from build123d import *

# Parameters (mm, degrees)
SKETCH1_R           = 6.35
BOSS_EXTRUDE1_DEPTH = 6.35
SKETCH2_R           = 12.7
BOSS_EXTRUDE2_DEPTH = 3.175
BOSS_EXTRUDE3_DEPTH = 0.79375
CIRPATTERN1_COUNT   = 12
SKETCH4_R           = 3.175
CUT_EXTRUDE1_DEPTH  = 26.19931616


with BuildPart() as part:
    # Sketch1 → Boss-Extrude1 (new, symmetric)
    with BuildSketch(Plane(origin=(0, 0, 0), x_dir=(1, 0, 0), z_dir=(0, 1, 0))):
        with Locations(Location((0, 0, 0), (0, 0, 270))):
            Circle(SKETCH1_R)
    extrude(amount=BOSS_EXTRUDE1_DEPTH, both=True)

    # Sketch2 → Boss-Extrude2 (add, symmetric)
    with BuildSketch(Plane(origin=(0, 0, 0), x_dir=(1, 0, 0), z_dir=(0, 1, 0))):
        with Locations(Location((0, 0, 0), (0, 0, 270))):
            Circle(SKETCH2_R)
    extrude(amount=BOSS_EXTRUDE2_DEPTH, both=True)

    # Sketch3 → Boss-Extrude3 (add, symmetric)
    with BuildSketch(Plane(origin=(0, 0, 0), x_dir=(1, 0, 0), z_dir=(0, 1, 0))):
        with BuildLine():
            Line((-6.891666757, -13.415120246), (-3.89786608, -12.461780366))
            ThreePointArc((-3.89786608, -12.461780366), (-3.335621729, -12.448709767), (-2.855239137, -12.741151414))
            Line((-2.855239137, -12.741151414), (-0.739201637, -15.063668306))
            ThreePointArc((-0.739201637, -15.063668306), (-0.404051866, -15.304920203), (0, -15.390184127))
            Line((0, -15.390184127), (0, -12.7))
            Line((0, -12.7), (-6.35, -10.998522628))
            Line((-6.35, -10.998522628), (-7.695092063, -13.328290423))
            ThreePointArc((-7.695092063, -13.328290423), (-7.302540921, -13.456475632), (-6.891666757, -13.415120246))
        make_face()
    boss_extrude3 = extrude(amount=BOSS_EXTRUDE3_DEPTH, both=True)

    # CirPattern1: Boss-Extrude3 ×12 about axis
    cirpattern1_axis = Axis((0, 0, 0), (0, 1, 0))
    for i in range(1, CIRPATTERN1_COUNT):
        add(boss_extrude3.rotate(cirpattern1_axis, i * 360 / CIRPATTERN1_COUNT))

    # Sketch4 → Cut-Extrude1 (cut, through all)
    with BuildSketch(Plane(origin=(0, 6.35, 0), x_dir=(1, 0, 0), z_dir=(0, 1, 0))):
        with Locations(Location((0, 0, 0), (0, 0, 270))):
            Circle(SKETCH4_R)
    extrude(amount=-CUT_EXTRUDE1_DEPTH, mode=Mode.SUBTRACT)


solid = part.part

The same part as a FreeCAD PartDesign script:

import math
import FreeCAD as App
import Part
import Sketcher

V = App.Vector
Q = App.Units.Quantity

doc = App.newDocument("Part")
body = doc.addObject("PartDesign::Body", "Body")

# Sketch on XZ plane
sketch1 = body.newObject("Sketcher::SketchObject", "Sketch")
sketch1.AttachmentSupport = (doc.getObject("XZ_Plane"), [""])
sketch1.MapMode = "FlatFace"
sketch1.addGeometry(Part.Circle(V(0, 0, 0), V(0, 0, 1), 6), False)
sketch1.addConstraint(Sketcher.Constraint("Coincident", 0, 3, -1, 1))
sketch1.addConstraint(Sketcher.Constraint("Diameter", 0, Q("0.5 in")))
pad1 = body.newObject("PartDesign::Pad", "Pad")
pad1.Profile = sketch1
pad1.Length = Q("0.5 in")
pad1.Midplane = True

# Sketch on XZ plane
sketch2 = body.newObject("Sketcher::SketchObject", "Sketch001")
sketch2.AttachmentSupport = (doc.getObject("XZ_Plane"), [""])
sketch2.MapMode = "FlatFace"
sketch2.addGeometry(Part.Circle(V(0, 0, 0), V(0, 0, 1), 13), False)
sketch2.addConstraint(Sketcher.Constraint("Coincident", 0, 3, -1, 1))
sketch2.addConstraint(Sketcher.Constraint("Diameter", 0, Q("1 in")))
pad2 = body.newObject("PartDesign::Pad", "Pad001")
pad2.Profile = sketch2
pad2.Length = Q("0.25 in")
pad2.Midplane = True

# Sketch on XZ plane
sketch3 = body.newObject("Sketcher::SketchObject", "Sketch002")
sketch3.AttachmentSupport = (doc.getObject("XZ_Plane"), [""])
sketch3.MapMode = "FlatFace"
sketch3.addGeometry(Part.LineSegment(V(-6.9, 13.4, 0), V(-3.9, 12.5, 0)), False)
sketch3.addGeometry(Part.ArcOfCircle(Part.Circle(V(-3.6, 13.4, 0), V(0, 0, 1), 1), math.radians(-108), math.radians(-42)), False)
sketch3.addGeometry(Part.LineSegment(V(-2.9, 12.7, 0), V(-0.7, 15.1, 0)), False)
sketch3.addGeometry(Part.ArcOfCircle(Part.Circle(V(0, 14.4, 0), V(0, 0, 1), 1), math.radians(90), math.radians(138)), False)
sketch3.addGeometry(Part.LineSegment(V(0, 15.4, 0), V(0, 12.7, 0)), False)
sketch3.addGeometry(Part.LineSegment(V(0, 12.7, 0), V(-6.3, 11, 0)), False)
sketch3.addGeometry(Part.LineSegment(V(-6.3, 11, 0), V(-7.7, 13.3, 0)), False)
sketch3.addGeometry(Part.ArcOfCircle(Part.Circle(V(-7.2, 12.5, 0), V(0, 0, 1), 1), math.radians(72), math.radians(120)), False)
sketch3.addConstraint(Sketcher.Constraint("Tangent", 0, 2, 1, 1))
sketch3.addConstraint(Sketcher.Constraint("Tangent", 1, 2, 2, 1))
sketch3.addConstraint(Sketcher.Constraint("Tangent", 2, 2, 3, 2))
sketch3.addConstraint(Sketcher.Constraint("Coincident", 3, 1, 4, 1))
sketch3.addConstraint(Sketcher.Constraint("Coincident", 4, 2, 5, 1))
sketch3.addConstraint(Sketcher.Constraint("Coincident", 5, 2, 6, 1))
sketch3.addConstraint(Sketcher.Constraint("Coincident", 6, 2, 7, 2))
sketch3.addConstraint(Sketcher.Constraint("Tangent", 7, 1, 0, 1))
sketch3.addConstraint(Sketcher.Constraint("Vertical", 4))
sketch3.addConstraint(Sketcher.Constraint("Equal", 1, 3))
sketch3.addConstraint(Sketcher.Constraint("Equal", 3, 7))
sketch3.addConstraint(Sketcher.Constraint("PointOnObject", 3, 3, -2))
sketch3.addConstraint(Sketcher.Constraint("PointOnObject", 3, 1, -2))
sketch3.addConstraint(Sketcher.Constraint("Equal", 0, 2))
sketch3.addConstraint(Sketcher.Constraint("Angle", 5, Q("-165 deg")))
sketch3.addConstraint(Sketcher.Constraint("Angle", 6, Q("120 deg")))
sketch3.addConstraint(Sketcher.Constraint("DistanceY", -1, 1, 4, 2, Q("0.5 in")))
sketch3.addConstraint(Sketcher.Constraint("DistanceX", 5, 2, -1, 1, Q("0.25 in")))
sketch3.addConstraint(Sketcher.Constraint("Radius", 1, Q("1 mm")))
sketch3.addConstraint(Sketcher.Constraint("DistanceX", 2, 2, -1, 1, Q("0.739202 mm")))
sketch3.addConstraint(Sketcher.Constraint("DistanceX", 6, 2, 7, 3, Q("0.5 mm")))
sketch3.addConstraint(Sketcher.Constraint("DistanceX", 7, 1, 0, 2, Q("2.993801 mm")))
sketch3.addConstraint(Sketcher.Constraint("DistanceY", 4, 2, 4, 1, Q("2.690184 mm")))
pad3 = body.newObject("PartDesign::Pad", "Pad002")
pad3.Profile = sketch3
pad3.Length = Q("0.0625 in")
pad3.Midplane = True
doc.recompute()

polarpattern = body.newObject("PartDesign::PolarPattern", "PolarPattern")
polarpattern.Originals = [pad3]
polarpattern.Axis = (doc.getObject("Y_Axis"), [""])
polarpattern.Angle = 360
polarpattern.Occurrences = 12
body.Tip = polarpattern

# Sketch on XZ plane
sketch4 = body.newObject("Sketcher::SketchObject", "Sketch003")
sketch4.AttachmentSupport = (doc.getObject("XZ_Plane"), [""])
sketch4.MapMode = "FlatFace"
sketch4.AttachmentOffset = App.Placement(V(0, 0, -0.25 * 25.4), App.Rotation())
sketch4.addGeometry(Part.Circle(V(0, 0, 0), V(0, 0, 1), 3.2), False)
sketch4.addConstraint(Sketcher.Constraint("Coincident", 0, 3, -1, 1))
sketch4.addConstraint(Sketcher.Constraint("Diameter", 0, Q("0.25 in")))
pocket1 = body.newObject("PartDesign::Pocket", "Pocket")
pocket1.Profile = sketch4
pocket1.Type = "ThroughAll"
pocket1.Reversed = True

doc.recompute()
